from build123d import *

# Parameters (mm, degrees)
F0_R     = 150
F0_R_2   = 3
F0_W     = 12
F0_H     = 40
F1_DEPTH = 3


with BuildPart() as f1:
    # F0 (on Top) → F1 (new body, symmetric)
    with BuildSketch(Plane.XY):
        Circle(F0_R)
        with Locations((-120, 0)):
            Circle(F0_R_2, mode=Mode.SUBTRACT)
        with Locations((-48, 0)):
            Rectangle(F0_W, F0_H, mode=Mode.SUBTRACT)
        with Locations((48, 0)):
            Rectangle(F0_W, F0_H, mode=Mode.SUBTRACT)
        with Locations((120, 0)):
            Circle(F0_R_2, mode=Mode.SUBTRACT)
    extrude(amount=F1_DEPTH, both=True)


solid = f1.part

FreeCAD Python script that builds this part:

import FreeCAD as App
import Part
import Sketcher
from FreeCAD import Vector
Q = App.Units.Quantity


def add_polygon(sketch, points):
    """Adds a closed chain of lines whose ends are joined by coincident constraints."""
    first, n = sketch.GeometryCount, len(points)
    for a, b in zip(points, points[1:] + points[:1]):
        sketch.addGeometry(Part.LineSegment(App.Vector(*a, 0), App.Vector(*b, 0)), False)
    for i in range(n):
        sketch.addConstraint(Sketcher.Constraint("Coincident", first + i, 2, first + (i + 1) % n, 1))

doc = App.newDocument("Part")
body = doc.addObject("PartDesign::Body", "Body")

sketch1 = doc.addObject("Sketcher::SketchObject", "Sketch")
body.addObject(sketch1)
sketch1.AttachmentSupport = (doc.XY_Plane, [""])
sketch1.MapMode = "FlatFace"
sketch1.addGeometry(Part.Circle(Vector(0, 0, 0), Vector(0, 0, 1), 150), False)
sketch1.addGeometry(Part.Circle(Vector(-120, 0, 0), Vector(0, 0, 1), 3), False)
add_polygon(sketch1, [(-42, -20), (-54, -20), (-54, 20), (-42, 20)])
add_polygon(sketch1, [(54, -20), (42, -20), (42, 20), (54, 20)])
sketch1.addGeometry(Part.Circle(Vector(120, 0, 0), Vector(0, 0, 1), 3), False)
sketch1.addConstraint(Sketcher.Constraint("Horizontal", 2))
sketch1.addConstraint(Sketcher.Constraint("Vertical", 3))
sketch1.addConstraint(Sketcher.Constraint("Horizontal", 4))
sketch1.addConstraint(Sketcher.Constraint("Vertical", 5))
sketch1.addConstraint(Sketcher.Constraint("Horizontal", 6))
sketch1.addConstraint(Sketcher.Constraint("Vertical", 7))
sketch1.addConstraint(Sketcher.Constraint("Horizontal", 8))
sketch1.addConstraint(Sketcher.Constraint("Vertical", 9))
sketch1.addConstraint(Sketcher.Constraint("Coincident", 0, 3, -1, 1))
sketch1.addConstraint(Sketcher.Constraint("Equal", 1, 10))
sketch1.addConstraint(Sketcher.Constraint("Symmetric", 1, 3, 10, 3, -1, 1))
sketch1.addConstraint(Sketcher.Constraint("Symmetric", 4, 2, 6, 2, -1, 1))
sketch1.addConstraint(Sketcher.Constraint("Symmetric", 2, 2, 8, 2, -1, 1))
sketch1.addConstraint(Sketcher.Constraint("PointOnObject", 1, 3, -1))
sketch1.addConstraint(Sketcher.Constraint("Horizontal", 5, 2, 6, 2))
sketch1.addConstraint(Sketcher.Constraint("Diameter", 0, Q("300 mm")))
sketch1.addConstraint(Sketcher.Constraint("Diameter", 1, Q("6 mm")))
sketch1.addConstraint(Sketcher.Constraint("DistanceX", 2, 2, 2, 1, Q("12 mm")))
sketch1.addConstraint(Sketcher.Constraint("DistanceY", 3, 1, 3, 2, Q("40 mm")))
sketch1.addConstraint(Sketcher.Constraint("DistanceX", 1, 3, -1, 1, Q("120 mm")))
sketch1.addConstraint(Sketcher.Constraint("DistanceX", 2, 2, -1, 1, Q("54 mm")))
pad1 = doc.addObject("PartDesign::Pad", "Pad")
body.addObject(pad1)
pad1.Profile = sketch1
pad1.Length = 6
pad1.Midplane = True

doc.recompute()
